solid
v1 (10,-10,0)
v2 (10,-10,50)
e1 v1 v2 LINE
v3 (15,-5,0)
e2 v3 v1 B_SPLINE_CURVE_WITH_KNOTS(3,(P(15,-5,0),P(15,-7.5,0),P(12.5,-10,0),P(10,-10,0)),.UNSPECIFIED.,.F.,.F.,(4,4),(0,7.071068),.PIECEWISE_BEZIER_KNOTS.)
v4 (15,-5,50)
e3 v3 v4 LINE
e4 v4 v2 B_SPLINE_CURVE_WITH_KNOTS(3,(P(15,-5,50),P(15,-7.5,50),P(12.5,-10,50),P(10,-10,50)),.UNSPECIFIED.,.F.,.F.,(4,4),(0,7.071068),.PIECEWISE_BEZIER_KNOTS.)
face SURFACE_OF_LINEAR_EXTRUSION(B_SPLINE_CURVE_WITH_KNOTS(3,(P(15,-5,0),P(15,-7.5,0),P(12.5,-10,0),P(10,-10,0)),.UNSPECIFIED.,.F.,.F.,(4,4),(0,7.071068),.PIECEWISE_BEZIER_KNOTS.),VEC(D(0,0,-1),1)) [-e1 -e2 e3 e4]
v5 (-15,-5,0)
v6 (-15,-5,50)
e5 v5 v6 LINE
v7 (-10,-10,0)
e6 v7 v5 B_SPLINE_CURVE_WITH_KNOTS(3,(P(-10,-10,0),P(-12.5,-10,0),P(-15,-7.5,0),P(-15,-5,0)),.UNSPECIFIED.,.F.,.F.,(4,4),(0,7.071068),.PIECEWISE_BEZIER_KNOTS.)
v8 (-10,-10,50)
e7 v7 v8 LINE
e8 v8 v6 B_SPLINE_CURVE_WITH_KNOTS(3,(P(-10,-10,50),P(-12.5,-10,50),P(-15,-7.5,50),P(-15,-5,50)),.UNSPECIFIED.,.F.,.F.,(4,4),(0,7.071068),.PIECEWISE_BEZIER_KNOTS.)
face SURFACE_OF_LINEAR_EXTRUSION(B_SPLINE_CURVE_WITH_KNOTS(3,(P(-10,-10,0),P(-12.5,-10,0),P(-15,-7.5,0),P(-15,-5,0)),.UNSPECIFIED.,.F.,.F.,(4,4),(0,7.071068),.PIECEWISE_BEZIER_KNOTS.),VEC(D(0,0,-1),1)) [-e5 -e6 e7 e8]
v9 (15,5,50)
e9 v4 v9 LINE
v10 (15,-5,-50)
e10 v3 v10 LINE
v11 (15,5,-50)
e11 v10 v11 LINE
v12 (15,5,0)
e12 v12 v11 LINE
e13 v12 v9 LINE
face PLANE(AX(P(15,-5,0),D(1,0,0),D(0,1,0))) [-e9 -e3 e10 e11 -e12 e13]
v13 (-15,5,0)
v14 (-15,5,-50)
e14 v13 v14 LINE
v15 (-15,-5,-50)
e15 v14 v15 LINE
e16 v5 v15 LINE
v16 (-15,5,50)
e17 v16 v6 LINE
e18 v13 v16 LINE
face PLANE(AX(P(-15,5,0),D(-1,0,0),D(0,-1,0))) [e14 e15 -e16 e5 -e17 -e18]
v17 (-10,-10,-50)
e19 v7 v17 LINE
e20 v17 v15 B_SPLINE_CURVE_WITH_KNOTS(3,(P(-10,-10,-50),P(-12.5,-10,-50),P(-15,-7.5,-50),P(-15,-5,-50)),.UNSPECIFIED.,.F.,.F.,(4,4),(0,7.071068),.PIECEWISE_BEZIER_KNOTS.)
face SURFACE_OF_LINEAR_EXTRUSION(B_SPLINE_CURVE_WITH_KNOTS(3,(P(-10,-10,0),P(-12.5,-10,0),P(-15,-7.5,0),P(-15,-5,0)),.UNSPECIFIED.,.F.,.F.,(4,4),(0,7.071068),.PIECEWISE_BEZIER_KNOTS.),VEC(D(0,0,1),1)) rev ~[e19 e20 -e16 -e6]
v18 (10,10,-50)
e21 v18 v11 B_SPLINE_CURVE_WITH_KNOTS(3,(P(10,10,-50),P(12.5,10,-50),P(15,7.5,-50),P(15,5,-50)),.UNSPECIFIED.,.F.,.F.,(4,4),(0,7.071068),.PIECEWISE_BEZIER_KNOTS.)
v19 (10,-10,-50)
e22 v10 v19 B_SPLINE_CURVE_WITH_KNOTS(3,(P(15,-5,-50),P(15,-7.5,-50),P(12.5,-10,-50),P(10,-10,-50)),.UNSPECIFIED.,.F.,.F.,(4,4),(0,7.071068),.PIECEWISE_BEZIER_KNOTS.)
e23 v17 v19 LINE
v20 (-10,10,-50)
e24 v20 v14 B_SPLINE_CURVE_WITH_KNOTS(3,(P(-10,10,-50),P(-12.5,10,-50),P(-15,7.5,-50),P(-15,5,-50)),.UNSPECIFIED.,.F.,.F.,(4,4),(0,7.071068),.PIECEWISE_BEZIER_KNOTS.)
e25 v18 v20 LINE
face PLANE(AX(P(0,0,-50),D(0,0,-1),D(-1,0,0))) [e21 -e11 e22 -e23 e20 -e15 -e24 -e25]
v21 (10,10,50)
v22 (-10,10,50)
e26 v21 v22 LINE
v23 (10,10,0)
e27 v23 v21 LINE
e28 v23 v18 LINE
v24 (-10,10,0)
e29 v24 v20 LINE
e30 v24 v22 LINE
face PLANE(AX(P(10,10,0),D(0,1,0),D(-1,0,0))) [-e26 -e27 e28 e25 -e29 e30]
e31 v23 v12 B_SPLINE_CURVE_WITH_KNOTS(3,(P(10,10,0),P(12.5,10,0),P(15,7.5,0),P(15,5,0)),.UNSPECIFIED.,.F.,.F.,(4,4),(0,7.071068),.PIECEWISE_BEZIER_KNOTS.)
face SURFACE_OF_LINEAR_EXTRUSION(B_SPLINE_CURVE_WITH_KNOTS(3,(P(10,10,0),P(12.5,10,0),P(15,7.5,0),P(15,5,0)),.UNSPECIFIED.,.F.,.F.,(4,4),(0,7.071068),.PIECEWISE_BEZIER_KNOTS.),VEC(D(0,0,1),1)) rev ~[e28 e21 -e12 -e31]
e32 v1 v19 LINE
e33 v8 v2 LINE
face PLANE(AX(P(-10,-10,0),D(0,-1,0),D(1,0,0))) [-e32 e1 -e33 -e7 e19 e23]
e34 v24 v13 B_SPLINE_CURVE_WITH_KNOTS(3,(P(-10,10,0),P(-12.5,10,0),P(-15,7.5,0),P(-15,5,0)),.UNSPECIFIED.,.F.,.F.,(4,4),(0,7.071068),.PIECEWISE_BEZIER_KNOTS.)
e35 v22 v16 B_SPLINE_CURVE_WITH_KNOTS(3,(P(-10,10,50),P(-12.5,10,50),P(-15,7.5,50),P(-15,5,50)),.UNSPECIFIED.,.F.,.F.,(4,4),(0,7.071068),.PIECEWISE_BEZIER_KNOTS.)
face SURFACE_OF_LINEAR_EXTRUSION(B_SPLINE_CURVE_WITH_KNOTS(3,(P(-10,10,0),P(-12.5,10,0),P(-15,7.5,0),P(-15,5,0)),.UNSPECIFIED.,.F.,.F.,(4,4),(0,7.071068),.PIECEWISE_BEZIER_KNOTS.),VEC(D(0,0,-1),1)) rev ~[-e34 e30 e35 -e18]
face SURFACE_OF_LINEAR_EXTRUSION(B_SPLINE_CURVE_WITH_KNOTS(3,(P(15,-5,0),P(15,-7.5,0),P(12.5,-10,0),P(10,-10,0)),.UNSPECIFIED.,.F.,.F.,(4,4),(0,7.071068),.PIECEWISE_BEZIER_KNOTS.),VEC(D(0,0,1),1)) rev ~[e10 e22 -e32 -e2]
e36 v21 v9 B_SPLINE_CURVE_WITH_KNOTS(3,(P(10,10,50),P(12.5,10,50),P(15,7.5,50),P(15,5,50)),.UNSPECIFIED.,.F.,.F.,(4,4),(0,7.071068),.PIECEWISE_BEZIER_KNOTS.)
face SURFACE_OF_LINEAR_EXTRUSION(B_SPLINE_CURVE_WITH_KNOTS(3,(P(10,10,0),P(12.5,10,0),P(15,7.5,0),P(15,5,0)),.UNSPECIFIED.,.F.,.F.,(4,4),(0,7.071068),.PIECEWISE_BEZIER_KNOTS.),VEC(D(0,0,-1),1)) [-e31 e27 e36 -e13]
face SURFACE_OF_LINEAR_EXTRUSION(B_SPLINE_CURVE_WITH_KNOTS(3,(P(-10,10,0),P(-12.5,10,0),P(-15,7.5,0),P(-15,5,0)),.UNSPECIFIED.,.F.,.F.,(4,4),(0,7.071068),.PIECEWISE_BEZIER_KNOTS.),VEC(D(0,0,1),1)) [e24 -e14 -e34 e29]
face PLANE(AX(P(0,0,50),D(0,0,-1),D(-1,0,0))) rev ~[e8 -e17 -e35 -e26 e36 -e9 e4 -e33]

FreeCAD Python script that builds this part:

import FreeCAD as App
import Part
import Sketcher

doc = App.newDocument("Part")
body = doc.addObject("PartDesign::Body", "Body")

# Sketch on XY plane
sketch1 = body.newObject("Sketcher::SketchObject", "Sketch")
sketch1.AttachmentSupport = (doc.getObject("XY_Plane"), [""])
sketch1.MapMode = "FlatFace"
sketch1.addGeometry([
    Part.BSplineCurve([App.Vector(10, 10, 0), App.Vector(12.5, 10, 0), App.Vector(15, 7.5, 0), App.Vector(15, 5, 0)], [4, 4], [0, 7.071068], False, 3, [1, 1, 1, 1], False),  # 0
    Part.LineSegment(App.Vector(10, 10, 0), App.Vector(-10, 10, 0)),  # 1
    Part.BSplineCurve([App.Vector(-10, 10, 0), App.Vector(-12.5, 10, 0), App.Vector(-15, 7.5, 0), App.Vector(-15, 5, 0)], [4, 4], [0, 7.071068], False, 3, [1, 1, 1, 1], False),  # 2
    Part.LineSegment(App.Vector(-15, 5, 0), App.Vector(-15, -5, 0)),  # 3
    Part.BSplineCurve([App.Vector(-10, -10, 0), App.Vector(-12.5, -10, 0), App.Vector(-15, -7.5, 0), App.Vector(-15, -5, 0)], [4, 4], [0, 7.071068], False, 3, [1, 1, 1, 1], False),  # 4
    Part.LineSegment(App.Vector(-10, -10, 0), App.Vector(10, -10, 0)),  # 5
    Part.BSplineCurve([App.Vector(15, -5, 0), App.Vector(15, -7.5, 0), App.Vector(12.5, -10, 0), App.Vector(10, -10, 0)], [4, 4], [0, 7.071068], False, 3, [1, 1, 1, 1], False),  # 6
    Part.LineSegment(App.Vector(15, -5, 0), App.Vector(15, 5, 0)),  # 7
], False)
sketch1.addConstraint([
    Sketcher.Constraint("Block", 0),
    Sketcher.Constraint("Block", 2),
    Sketcher.Constraint("Block", 4),
    Sketcher.Constraint("Block", 6),
    Sketcher.Constraint("Coincident", 0, 1, 1, 1),
    Sketcher.Constraint("Coincident", 1, 2, 2, 1),
    Sketcher.Constraint("Coincident", 2, 2, 3, 1),
    Sketcher.Constraint("Coincident", 3, 2, 4, 2),
    Sketcher.Constraint("Coincident", 4, 1, 5, 1),
    Sketcher.Constraint("Coincident", 5, 2, 6, 2),
    Sketcher.Constraint("Coincident", 6, 1, 7, 1),
    Sketcher.Constraint("Coincident", 7, 2, 0, 2),
])
pad1 = body.newObject("PartDesign::Pad", "Pad")
pad1.Profile = sketch1
pad1.Length = 100
pad1.Midplane = True

doc.recompute()
